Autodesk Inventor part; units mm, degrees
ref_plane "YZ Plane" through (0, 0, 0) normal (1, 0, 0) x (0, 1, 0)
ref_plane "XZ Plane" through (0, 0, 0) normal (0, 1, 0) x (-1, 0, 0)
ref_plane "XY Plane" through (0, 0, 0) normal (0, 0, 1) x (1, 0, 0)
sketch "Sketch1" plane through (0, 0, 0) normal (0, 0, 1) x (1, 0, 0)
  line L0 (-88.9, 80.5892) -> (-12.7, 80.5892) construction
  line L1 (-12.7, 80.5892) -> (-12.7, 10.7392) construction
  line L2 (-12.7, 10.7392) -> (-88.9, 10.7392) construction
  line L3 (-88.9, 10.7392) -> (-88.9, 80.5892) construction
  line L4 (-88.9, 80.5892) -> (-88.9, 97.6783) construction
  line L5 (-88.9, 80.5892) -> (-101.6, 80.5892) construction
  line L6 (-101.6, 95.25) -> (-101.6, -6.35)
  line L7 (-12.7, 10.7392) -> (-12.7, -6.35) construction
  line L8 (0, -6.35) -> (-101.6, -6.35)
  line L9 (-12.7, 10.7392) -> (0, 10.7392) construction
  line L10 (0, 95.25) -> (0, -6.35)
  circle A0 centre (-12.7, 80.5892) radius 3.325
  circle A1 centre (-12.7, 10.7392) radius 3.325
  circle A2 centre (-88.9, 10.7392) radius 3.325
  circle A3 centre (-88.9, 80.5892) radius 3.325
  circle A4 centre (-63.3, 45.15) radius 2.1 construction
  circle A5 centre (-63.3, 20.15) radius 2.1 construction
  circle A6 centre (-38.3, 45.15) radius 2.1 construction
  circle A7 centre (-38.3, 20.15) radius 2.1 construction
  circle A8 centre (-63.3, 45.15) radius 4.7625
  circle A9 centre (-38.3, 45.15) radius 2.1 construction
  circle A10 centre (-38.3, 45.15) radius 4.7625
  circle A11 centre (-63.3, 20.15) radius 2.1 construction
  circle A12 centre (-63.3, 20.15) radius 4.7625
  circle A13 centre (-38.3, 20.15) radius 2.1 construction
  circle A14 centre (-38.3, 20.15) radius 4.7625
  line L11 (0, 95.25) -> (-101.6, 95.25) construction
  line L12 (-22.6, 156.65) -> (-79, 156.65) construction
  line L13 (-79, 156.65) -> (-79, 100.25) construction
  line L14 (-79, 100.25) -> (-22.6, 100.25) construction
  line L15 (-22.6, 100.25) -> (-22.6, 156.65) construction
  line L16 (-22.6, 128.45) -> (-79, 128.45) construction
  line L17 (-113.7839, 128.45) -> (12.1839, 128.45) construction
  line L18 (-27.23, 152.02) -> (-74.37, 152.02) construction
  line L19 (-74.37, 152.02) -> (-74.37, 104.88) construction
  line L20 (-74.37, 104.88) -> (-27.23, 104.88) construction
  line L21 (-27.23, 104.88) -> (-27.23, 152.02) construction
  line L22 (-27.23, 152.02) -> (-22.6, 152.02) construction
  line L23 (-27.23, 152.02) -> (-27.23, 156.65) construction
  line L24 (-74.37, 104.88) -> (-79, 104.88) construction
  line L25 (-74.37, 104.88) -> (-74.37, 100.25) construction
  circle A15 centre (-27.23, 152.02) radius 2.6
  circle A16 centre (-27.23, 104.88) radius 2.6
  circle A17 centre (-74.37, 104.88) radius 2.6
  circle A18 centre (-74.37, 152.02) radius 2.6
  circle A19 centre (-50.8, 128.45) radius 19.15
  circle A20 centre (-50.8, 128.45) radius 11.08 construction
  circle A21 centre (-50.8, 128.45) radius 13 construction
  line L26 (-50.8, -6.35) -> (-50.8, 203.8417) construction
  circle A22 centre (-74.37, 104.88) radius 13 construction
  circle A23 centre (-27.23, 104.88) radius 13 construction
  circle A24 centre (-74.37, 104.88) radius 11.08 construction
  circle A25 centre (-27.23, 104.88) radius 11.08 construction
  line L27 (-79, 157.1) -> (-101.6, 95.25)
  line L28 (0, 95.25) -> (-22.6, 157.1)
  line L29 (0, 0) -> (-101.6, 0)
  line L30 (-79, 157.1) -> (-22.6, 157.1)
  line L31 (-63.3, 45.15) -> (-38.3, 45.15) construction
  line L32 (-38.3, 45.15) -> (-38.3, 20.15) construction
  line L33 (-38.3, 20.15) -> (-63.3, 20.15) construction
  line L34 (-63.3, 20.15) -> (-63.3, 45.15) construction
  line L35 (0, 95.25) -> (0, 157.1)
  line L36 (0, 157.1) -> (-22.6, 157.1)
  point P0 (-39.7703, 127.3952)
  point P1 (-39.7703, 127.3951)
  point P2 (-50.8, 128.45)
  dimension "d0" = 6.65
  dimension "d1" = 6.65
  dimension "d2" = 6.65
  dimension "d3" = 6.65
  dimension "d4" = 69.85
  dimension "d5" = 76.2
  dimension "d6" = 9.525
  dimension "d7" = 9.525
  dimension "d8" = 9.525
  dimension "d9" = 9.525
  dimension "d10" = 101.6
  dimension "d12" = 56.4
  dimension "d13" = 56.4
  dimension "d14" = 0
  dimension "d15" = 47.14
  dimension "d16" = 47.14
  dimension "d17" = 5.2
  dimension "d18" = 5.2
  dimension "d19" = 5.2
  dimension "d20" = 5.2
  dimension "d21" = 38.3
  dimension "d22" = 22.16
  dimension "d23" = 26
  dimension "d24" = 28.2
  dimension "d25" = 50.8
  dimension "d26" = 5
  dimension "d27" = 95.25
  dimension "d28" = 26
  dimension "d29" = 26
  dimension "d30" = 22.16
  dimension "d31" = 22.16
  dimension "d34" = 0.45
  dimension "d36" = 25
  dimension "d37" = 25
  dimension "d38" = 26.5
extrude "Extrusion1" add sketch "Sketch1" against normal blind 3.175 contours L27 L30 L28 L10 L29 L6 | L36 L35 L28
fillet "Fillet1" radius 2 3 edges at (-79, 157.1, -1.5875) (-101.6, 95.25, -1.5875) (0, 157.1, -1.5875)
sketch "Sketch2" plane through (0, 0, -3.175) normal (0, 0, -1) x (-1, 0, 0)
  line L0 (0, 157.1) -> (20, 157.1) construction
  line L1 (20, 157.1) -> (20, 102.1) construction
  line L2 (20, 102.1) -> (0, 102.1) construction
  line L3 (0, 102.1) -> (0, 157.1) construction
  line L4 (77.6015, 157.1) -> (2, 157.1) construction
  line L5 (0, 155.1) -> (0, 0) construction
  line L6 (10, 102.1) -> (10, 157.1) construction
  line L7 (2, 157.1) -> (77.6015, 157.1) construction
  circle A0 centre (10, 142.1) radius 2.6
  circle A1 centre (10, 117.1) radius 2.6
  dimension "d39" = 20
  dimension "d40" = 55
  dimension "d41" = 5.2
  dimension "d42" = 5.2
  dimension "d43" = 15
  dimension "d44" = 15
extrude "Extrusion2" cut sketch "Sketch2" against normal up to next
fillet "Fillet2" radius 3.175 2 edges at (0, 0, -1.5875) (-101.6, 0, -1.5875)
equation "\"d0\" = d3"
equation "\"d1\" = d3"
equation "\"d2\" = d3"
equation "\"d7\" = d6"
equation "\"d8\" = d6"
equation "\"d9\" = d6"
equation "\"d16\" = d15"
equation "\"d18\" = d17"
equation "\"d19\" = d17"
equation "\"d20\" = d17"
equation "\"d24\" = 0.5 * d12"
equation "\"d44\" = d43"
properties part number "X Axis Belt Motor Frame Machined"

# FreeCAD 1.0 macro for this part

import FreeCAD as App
import Part
import Sketcher
from FreeCAD import Vector
Q = App.Units.Quantity


def edges_at(feature, points):
    """Names of the edges that pass closest to the given points."""
    edges = feature.Shape.Edges
    near = lambda p: min(range(len(edges)), key=lambda i: edges[i].distToShape(Part.Vertex(*p))[0])
    return sorted({f"Edge{near(p) + 1}" for p in points})


def add_polygon(sketch, points):
    """Adds a closed chain of lines whose ends are joined by coincident constraints."""
    first, n = sketch.GeometryCount, len(points)
    for a, b in zip(points, points[1:] + points[:1]):
        sketch.addGeometry(Part.LineSegment(App.Vector(*a, 0), App.Vector(*b, 0)), False)
    for i in range(n):
        sketch.addConstraint(Sketcher.Constraint("Coincident", first + i, 2, first + (i + 1) % n, 1))

doc = App.newDocument("Part")
body = doc.addObject("PartDesign::Body", "Body")

# Sketch on XY plane
sketch1 = body.newObject("Sketcher::SketchObject", "Sketch")
sketch1.AttachmentSupport = (doc.getObject("XY_Plane"), [""])
sketch1.MapMode = "FlatFace"
add_polygon(sketch1, [(-79, 157.1), (-101.6, 95.25), (-101.6, 0), (0, 0), (0, 157.1)])  # lines 0-4
sketch1.addGeometry(Part.Circle(Vector(-88.9, 10.7392, 0), Vector(0, 0, 1), 3.325), False)  # 5
sketch1.addGeometry(Part.Circle(Vector(-63.3, 20.15, 0), Vector(0, 0, 1), 4.7625), False)  # 6
sketch1.addGeometry(Part.Circle(Vector(-63.3, 45.15, 0), Vector(0, 0, 1), 4.7625), False)  # 7
sketch1.addGeometry(Part.Circle(Vector(-38.3, 20.15, 0), Vector(0, 0, 1), 4.7625), False)  # 8
sketch1.addGeometry(Part.Circle(Vector(-12.7, 10.7392, 0), Vector(0, 0, 1), 3.325), False)  # 9
sketch1.addGeometry(Part.Circle(Vector(-38.3, 45.15, 0), Vector(0, 0, 1), 4.7625), False)  # 10
sketch1.addGeometry(Part.Circle(Vector(-88.9, 80.5892, 0), Vector(0, 0, 1), 3.325), False)  # 11
sketch1.addGeometry(Part.Circle(Vector(-74.37, 104.88, 0), Vector(0, 0, 1), 2.6), False)  # 12
sketch1.addGeometry(Part.Circle(Vector(-50.8, 128.45, 0), Vector(0, 0, 1), 19.15), False)  # 13
sketch1.addGeometry(Part.Circle(Vector(-74.37, 152.02, 0), Vector(0, 0, 1), 2.6), False)  # 14
sketch1.addGeometry(Part.Circle(Vector(-27.23, 104.88, 0), Vector(0, 0, 1), 2.6), False)  # 15
sketch1.addGeometry(Part.Circle(Vector(-12.7, 80.5892, 0), Vector(0, 0, 1), 3.325), False)  # 16
sketch1.addGeometry(Part.Circle(Vector(-27.23, 152.02, 0), Vector(0, 0, 1), 2.6), False)  # 17
sketch1.addConstraint([
    Sketcher.Constraint("Vertical", 1),
    Sketcher.Constraint("Horizontal", 2),
    Sketcher.Constraint("Vertical", 3),
    Sketcher.Constraint("Horizontal", 4),
    Sketcher.Constraint("Coincident", 2, 2, -1, 1),
    Sketcher.Constraint("Equal", 6, 7),
    Sketcher.Constraint("Equal", 7, 8),
    Sketcher.Constraint("Equal", 5, 9),
    Sketcher.Constraint("Equal", 8, 10),
    Sketcher.Constraint("Equal", 9, 11),
    Sketcher.Constraint("Equal", 12, 14),
    Sketcher.Constraint("Equal", 14, 15),
    Sketcher.Constraint("Equal", 11, 16),
    Sketcher.Constraint("Equal", 15, 17),
    Sketcher.Constraint("Horizontal", 6, 3, 8, 3),
    Sketcher.Constraint("Horizontal", 5, 3, 9, 3),
    Sketcher.Constraint("Horizontal", 7, 3, 10, 3),
    Sketcher.Constraint("Horizontal", 12, 3, 15, 3),
    Sketcher.Constraint("Horizontal", 11, 3, 16, 3),
    Sketcher.Constraint("Horizontal", 14, 3, 17, 3),
    Sketcher.Constraint("Vertical", 6, 3, 7, 3),
    Sketcher.Constraint("Vertical", 8, 3, 10, 3),
    Sketcher.Constraint("Vertical", 5, 3, 11, 3),
    Sketcher.Constraint("Vertical", 12, 3, 14, 3),
    Sketcher.Constraint("Vertical", 9, 3, 16, 3),
    Sketcher.Constraint("Vertical", 15, 3, 17, 3),
    Sketcher.Constraint("Diameter", 12, Q("5.2 mm")),
    Sketcher.Constraint("Diameter", 13, Q("38.3 mm")),
    Sketcher.Constraint("Diameter", 5, Q("6.65 mm")),
    Sketcher.Constraint("Diameter", 6, Q("9.525 mm")),
    Sketcher.Constraint("DistanceX", 2, 1, 2, 2, Q("101.6 mm")),
    Sketcher.Constraint("DistanceY", 6, 3, 7, 3, Q("25 mm")),
    Sketcher.Constraint("DistanceX", 6, 3, 8, 3, Q("25 mm")),
    Sketcher.Constraint("DistanceY", 1, 2, 1, 1, Q("95.25 mm")),
    Sketcher.Constraint("DistanceX", 8, 3, -1, 1, Q("38.3 mm")),
    Sketcher.Constraint("DistanceX", 13, 3, -1, 1, Q("50.8 mm")),
    Sketcher.Constraint("DistanceX", 5, 3, 9, 3, Q("76.2 mm")),
    Sketcher.Constraint("DistanceX", 4, 2, 13, 3, Q("28.2 mm")),
    Sketcher.Constraint("DistanceY", 5, 3, 11, 3, Q("69.85 mm")),
    Sketcher.Constraint("DistanceY", 12, 3, 14, 3, Q("47.14 mm")),
    Sketcher.Constraint("DistanceX", 12, 3, 15, 3, Q("47.14 mm")),
    Sketcher.Constraint("DistanceY", 3, 1, 3, 2, Q("157.1 mm")),
    Sketcher.Constraint("DistanceX", 5, 3, -1, 1, Q("88.9 mm")),
    Sketcher.Constraint("DistanceY", 7, 3, 13, 3, Q("83.3 mm")),
    Sketcher.Constraint("DistanceY", 0, 2, 13, 3, Q("33.2 mm")),
    Sketcher.Constraint("DistanceX", 12, 3, -1, 1, Q("74.37 mm")),
    Sketcher.Constraint("DistanceY", -1, 1, 12, 3, Q("104.88 mm")),
    Sketcher.Constraint("DistanceY", -1, 1, 5, 3, Q("10.7392 mm")),
])
pad1 = body.newObject("PartDesign::Pad", "Pad")
pad1.Profile = sketch1
pad1.Length = 3.175
pad1.Reversed = True
doc.recompute()

fillet = body.newObject("PartDesign::Fillet", "Fillet")
fillet.Base = (pad1, edges_at(pad1, [(-79, 157.1, -1.587), (-101.6, 95.25, -1.587), (0, 157.1, -1.587)]))
fillet.Radius = 2

# Sketch on XY plane
sketch2 = body.newObject("Sketcher::SketchObject", "Sketch001")
sketch2.AttachmentSupport = (doc.getObject("XY_Plane"), [""])
sketch2.MapMode = "FlatFace"
sketch2.AttachmentOffset = App.Placement(Vector(0, 0, -3.175), App.Rotation())
sketch2.addGeometry([
    Part.Circle(Vector(-10, 142.1, 0), Vector(0, 0, 1), 2.6),
    Part.Circle(Vector(-10, 117.1, 0), Vector(0, 0, 1), 2.6),
], False)
sketch2.addConstraint([
    Sketcher.Constraint("Equal", 0, 1),
    Sketcher.Constraint("Vertical", 0, 3, 1, 3),
    Sketcher.Constraint("Diameter", 0, Q("5.2 mm")),
    Sketcher.Constraint("DistanceX", 0, 3, -1, 1, Q("10 mm")),
    Sketcher.Constraint("DistanceY", 1, 3, 0, 3, Q("25 mm")),
    Sketcher.Constraint("DistanceY", -1, 1, 0, 3, Q("142.1 mm")),
])
pocket1 = body.newObject("PartDesign::Pocket", "Pocket")
pocket1.Profile = sketch2
pocket1.Type = "UpToFirst"
pocket1.Reversed = True
doc.recompute()

fillet2 = body.newObject("PartDesign::Fillet", "Fillet001")
fillet2.Base = (pocket1, edges_at(pocket1, [(0, 0, -1.587), (-101.6, 0, -1.587)]))
fillet2.Radius = 3.175

doc.recompute()
